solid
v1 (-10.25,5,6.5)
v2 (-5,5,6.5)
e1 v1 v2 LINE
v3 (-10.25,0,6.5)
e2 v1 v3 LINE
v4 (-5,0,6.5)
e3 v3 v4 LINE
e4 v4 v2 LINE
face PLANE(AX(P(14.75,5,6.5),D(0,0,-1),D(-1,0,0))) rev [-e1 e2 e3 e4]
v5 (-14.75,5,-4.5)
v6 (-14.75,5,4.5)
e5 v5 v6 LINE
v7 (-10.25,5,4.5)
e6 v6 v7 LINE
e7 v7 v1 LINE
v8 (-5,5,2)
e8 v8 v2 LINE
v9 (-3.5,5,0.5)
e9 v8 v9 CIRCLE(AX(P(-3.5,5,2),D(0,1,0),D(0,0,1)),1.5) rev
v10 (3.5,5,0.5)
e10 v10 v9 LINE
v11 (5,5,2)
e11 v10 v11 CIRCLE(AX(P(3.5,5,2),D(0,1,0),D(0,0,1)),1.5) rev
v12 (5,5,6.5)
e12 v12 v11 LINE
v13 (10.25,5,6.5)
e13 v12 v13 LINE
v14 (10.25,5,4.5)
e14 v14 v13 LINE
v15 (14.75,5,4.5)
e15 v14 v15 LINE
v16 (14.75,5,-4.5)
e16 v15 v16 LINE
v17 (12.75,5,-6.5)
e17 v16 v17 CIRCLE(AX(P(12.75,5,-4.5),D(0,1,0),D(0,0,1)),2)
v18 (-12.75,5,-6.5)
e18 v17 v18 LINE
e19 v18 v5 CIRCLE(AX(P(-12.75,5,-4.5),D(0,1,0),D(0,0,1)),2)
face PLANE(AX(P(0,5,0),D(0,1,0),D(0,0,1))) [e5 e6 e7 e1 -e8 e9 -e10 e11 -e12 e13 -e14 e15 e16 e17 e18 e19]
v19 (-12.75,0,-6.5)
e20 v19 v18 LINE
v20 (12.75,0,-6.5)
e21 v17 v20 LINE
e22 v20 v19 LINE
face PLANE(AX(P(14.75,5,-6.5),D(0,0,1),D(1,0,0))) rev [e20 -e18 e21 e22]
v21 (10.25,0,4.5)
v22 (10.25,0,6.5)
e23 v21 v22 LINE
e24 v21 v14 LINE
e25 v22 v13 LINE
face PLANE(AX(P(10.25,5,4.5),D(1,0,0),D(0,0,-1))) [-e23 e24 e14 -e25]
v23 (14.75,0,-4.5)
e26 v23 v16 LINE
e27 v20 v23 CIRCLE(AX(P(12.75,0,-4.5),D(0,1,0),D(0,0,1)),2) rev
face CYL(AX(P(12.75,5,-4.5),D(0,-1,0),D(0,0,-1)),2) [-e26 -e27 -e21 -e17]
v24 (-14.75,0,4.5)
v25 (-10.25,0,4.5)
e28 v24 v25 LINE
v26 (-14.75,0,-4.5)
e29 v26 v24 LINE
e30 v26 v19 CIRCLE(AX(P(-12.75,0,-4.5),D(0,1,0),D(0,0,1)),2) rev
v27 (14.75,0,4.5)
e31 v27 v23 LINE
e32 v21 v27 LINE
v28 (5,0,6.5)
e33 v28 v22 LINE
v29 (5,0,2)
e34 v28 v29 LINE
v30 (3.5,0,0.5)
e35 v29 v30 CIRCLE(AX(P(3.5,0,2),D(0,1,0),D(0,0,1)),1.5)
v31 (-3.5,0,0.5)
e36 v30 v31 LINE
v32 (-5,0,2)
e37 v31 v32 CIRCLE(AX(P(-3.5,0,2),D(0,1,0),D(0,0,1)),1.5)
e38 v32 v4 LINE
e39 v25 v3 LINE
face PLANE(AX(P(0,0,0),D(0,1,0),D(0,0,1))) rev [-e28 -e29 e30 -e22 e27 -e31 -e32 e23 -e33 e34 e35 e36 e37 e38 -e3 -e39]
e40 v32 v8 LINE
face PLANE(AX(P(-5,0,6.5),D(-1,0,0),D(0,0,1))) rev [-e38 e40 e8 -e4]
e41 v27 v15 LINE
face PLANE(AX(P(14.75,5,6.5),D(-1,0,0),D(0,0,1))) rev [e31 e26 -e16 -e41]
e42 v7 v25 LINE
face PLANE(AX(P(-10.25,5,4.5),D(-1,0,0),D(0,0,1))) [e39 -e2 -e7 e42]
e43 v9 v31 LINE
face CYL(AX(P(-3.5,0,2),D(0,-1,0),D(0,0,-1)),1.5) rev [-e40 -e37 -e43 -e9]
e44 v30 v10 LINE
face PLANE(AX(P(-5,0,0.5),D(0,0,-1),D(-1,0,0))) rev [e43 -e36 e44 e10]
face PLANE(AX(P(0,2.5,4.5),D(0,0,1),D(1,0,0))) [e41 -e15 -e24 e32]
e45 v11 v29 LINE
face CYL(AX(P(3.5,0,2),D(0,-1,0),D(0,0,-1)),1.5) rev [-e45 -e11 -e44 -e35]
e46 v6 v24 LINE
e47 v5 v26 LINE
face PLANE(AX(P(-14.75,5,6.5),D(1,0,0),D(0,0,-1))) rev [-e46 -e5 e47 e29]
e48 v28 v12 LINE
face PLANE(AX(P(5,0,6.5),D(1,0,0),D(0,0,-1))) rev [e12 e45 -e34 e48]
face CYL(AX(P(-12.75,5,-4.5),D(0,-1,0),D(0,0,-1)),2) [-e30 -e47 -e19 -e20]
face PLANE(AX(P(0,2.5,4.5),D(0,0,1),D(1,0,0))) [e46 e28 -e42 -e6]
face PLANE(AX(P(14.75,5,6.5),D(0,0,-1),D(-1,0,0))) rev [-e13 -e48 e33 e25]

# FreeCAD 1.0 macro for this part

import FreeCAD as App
import Part
import Sketcher

V = App.Vector
Q = App.Units.Quantity


def edges_at(feature, points):
    """Names of the edges that pass closest to the given points."""
    edges = feature.Shape.Edges
    near = lambda p: min(range(len(edges)), key=lambda i: edges[i].distToShape(Part.Vertex(*p))[0])
    return sorted({f"Edge{near(p) + 1}" for p in points})

doc = App.newDocument("Part")
body = doc.addObject("PartDesign::Body", "Body")

# Sketch on XZ plane
sketch1 = body.newObject("Sketcher::SketchObject", "Sketch")
sketch1.AttachmentSupport = (doc.getObject("XZ_Plane"), [""])
sketch1.MapMode = "FlatFace"
sketch1.addGeometry([
    Part.LineSegment(V(-14.75, -6.5, 0), V(-14.75, 6.5, 0)),
    Part.LineSegment(V(-14.75, 6.5, 0), V(14.75, 6.5, 0)),
    Part.LineSegment(V(14.75, 6.5, 0), V(14.75, -6.5, 0)),
    Part.LineSegment(V(14.75, -6.5, 0), V(-14.75, -6.5, 0)),
], False)
sketch1.addConstraint([
    Sketcher.Constraint("Coincident", 0, 2, 1, 1),
    Sketcher.Constraint("Coincident", 1, 2, 2, 1),
    Sketcher.Constraint("Coincident", 2, 2, 3, 1),
    Sketcher.Constraint("Coincident", 3, 2, 0, 1),
    Sketcher.Constraint("Vertical", 0),
    Sketcher.Constraint("Horizontal", 1),
    Sketcher.Constraint("Vertical", 2),
    Sketcher.Constraint("Horizontal", 3),
    Sketcher.Constraint("Symmetric", 0, 2, 2, 2, -1, 1),
    Sketcher.Constraint("DistanceY", 0, 1, 0, 2, Q("13 mm")),
    Sketcher.Constraint("DistanceX", 1, 1, 1, 2, Q("29.5 mm")),
])
pad1 = body.newObject("PartDesign::Pad", "Pad")
pad1.Profile = sketch1
pad1.Length = 5
pad1.Reversed = True

# Sketch on XZ plane
sketch2 = body.newObject("Sketcher::SketchObject", "Sketch001")
sketch2.AttachmentSupport = (doc.getObject("XZ_Plane"), [""])
sketch2.MapMode = "FlatFace"
sketch2.AttachmentOffset = App.Placement(V(0, 0, -5), App.Rotation())
sketch2.addGeometry([
    Part.LineSegment(V(-5, 0.5, 0), V(-5, 6.5, 0)),
    Part.LineSegment(V(-5, 6.5, 0), V(5, 6.5, 0)),
    Part.LineSegment(V(5, 6.5, 0), V(5, 0.5, 0)),
    Part.LineSegment(V(5, 0.5, 0), V(-5, 0.5, 0)),
], False)
sketch2.addConstraint([
    Sketcher.Constraint("Coincident", 0, 2, 1, 1),
    Sketcher.Constraint("Coincident", 1, 2, 2, 1),
    Sketcher.Constraint("Coincident", 2, 2, 3, 1),
    Sketcher.Constraint("Coincident", 3, 2, 0, 1),
    Sketcher.Constraint("Vertical", 0),
    Sketcher.Constraint("Horizontal", 1),
    Sketcher.Constraint("Vertical", 2),
    Sketcher.Constraint("Horizontal", 3),
    Sketcher.Constraint("DistanceX", 1, 1, 1, 2, Q("10 mm")),
    Sketcher.Constraint("DistanceY", 0, 1, 0, 2, Q("6 mm")),
    Sketcher.Constraint("DistanceX", 0, 2, -1, 1, Q("5 mm")),
    Sketcher.Constraint("DistanceY", -1, 1, 0, 2, Q("6.5 mm")),
])
pocket1 = body.newObject("PartDesign::Pocket", "Pocket")
pocket1.Profile = sketch2
pocket1.Type = "ThroughAll"
pocket1.Reversed = True
doc.recompute()

fillet = body.newObject("PartDesign::Fillet", "Fillet")
fillet.Base = (pocket1, edges_at(pocket1, [(-14.75, 2.5, -6.5), (14.75, 2.5, -6.5)]))
fillet.Radius = 2
doc.recompute()

fillet2 = body.newObject("PartDesign::Fillet", "Fillet001")
fillet2.Base = (fillet, edges_at(fillet, [(-5, 2.5, 0.5), (5, 2.5, 0.5)]))
fillet2.Radius = 1.5

# Sketch on XY plane
sketch3 = body.newObject("Sketcher::SketchObject", "Sketch002")
sketch3.AttachmentSupport = (doc.getObject("XY_Plane"), [""])
sketch3.MapMode = "FlatFace"
sketch3.AttachmentOffset = App.Placement(V(0, 0, 6.5), App.Rotation())
sketch3.addGeometry([
    Part.LineSegment(V(-19.012, 9.262, 0), V(-19.012, -4.262, 0)),  # 0
    Part.LineSegment(V(-19.012, -4.262, 0), V(19.012, -4.262, 0)),  # 1
    Part.LineSegment(V(19.012, -4.262, 0), V(19.012, 9.262, 0)),  # 2
    Part.LineSegment(V(19.012, 9.262, 0), V(-19.012, 9.262, 0)),  # 3
    Part.LineSegment(V(10.25, 0, 0), V(-10.25, 0, 0)),  # 4
    Part.LineSegment(V(-10.25, 0, 0), V(-10.25, 5, 0)),  # 5
    Part.LineSegment(V(-10.25, 5, 0), V(10.25, 5, 0)),  # 6
    Part.LineSegment(V(10.25, 5, 0), V(10.25, 0, 0)),  # 7
], False)
sketch3.addConstraint([
    Sketcher.Constraint("Coincident", 0, 2, 1, 1),
    Sketcher.Constraint("Coincident", 1, 2, 2, 1),
    Sketcher.Constraint("Coincident", 2, 2, 3, 1),
    Sketcher.Constraint("Coincident", 3, 2, 0, 1),
    Sketcher.Constraint("Coincident", 4, 2, 5, 1),
    Sketcher.Constraint("Coincident", 5, 2, 6, 1),
    Sketcher.Constraint("Coincident", 6, 2, 7, 1),
    Sketcher.Constraint("Coincident", 7, 2, 4, 1),
    Sketcher.Constraint("Vertical", 0),
    Sketcher.Constraint("Horizontal", 1),
    Sketcher.Constraint("Vertical", 2),
    Sketcher.Constraint("Horizontal", 3),
    Sketcher.Constraint("Horizontal", 4),
    Sketcher.Constraint("Vertical", 5),
    Sketcher.Constraint("Horizontal", 6),
    Sketcher.Constraint("Vertical", 7),
    Sketcher.Constraint("Symmetric", 4, 2, 7, 2, -1, 1),
    Sketcher.Constraint("DistanceY", 5, 1, 5, 2, Q("5 mm")),
    Sketcher.Constraint("DistanceX", 4, 2, 4, 1, Q("20.5 mm")),
    Sketcher.Constraint("DistanceX", 1, 1, 1, 2, Q("38.024 mm")),
    Sketcher.Constraint("DistanceY", 0, 2, 0, 1, Q("13.524 mm")),
    Sketcher.Constraint("DistanceX", 0, 2, -1, 1, Q("19.012 mm")),
    Sketcher.Constraint("DistanceY", 0, 2, -1, 1, Q("4.262 mm")),
])
pocket2 = body.newObject("PartDesign::Pocket", "Pocket001")
pocket2.Profile = sketch3
pocket2.Length = 2

doc.recompute()
